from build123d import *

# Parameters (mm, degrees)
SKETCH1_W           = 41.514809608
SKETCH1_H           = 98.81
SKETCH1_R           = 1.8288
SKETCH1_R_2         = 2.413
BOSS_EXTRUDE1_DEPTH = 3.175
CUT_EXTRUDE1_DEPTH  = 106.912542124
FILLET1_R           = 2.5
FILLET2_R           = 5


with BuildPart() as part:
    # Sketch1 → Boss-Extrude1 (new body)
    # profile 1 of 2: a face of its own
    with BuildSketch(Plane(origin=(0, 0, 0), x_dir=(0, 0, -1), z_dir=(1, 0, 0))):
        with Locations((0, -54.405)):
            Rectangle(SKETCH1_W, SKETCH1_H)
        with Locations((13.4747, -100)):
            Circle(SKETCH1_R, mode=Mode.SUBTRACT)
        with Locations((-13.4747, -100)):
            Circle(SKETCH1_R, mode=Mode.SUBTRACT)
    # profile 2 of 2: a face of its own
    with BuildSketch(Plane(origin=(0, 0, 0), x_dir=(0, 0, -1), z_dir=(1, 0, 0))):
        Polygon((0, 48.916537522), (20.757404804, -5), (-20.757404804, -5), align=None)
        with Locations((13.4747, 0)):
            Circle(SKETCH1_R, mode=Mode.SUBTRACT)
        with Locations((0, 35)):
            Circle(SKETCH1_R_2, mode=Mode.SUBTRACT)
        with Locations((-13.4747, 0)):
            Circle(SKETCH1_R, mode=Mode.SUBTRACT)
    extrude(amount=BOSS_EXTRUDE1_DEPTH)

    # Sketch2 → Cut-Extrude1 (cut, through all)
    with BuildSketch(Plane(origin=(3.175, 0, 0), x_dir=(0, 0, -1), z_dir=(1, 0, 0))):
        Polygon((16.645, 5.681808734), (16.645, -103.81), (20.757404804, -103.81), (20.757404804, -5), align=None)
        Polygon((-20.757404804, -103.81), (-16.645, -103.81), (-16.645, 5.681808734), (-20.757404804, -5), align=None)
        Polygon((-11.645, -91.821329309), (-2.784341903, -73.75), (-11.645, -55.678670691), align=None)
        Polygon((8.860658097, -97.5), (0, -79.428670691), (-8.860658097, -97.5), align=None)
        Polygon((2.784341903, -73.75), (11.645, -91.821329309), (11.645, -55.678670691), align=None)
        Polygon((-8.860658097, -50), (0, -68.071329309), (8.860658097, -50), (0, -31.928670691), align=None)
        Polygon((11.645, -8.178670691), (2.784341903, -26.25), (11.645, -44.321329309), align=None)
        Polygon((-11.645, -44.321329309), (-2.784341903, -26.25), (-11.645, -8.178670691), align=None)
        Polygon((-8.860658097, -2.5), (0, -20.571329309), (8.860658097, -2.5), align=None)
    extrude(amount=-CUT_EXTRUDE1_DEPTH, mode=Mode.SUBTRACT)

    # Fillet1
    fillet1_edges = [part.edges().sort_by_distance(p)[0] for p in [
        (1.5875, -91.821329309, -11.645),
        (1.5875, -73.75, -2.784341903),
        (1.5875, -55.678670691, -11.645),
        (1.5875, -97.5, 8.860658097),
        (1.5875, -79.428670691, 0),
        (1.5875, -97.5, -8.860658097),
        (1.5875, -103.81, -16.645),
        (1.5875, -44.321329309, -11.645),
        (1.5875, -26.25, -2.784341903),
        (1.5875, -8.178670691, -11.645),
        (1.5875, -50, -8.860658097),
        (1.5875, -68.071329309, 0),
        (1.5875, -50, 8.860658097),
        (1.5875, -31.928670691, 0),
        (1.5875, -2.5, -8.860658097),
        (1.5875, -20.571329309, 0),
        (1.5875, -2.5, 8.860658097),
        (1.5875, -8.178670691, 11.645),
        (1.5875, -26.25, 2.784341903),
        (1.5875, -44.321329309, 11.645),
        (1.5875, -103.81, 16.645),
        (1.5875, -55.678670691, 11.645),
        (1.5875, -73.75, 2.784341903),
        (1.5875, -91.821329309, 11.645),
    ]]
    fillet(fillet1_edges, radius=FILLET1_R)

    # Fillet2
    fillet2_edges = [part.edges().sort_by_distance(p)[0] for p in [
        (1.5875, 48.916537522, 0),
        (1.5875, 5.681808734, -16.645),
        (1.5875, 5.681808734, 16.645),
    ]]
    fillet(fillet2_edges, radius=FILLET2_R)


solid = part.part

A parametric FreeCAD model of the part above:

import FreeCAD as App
import Part
import Sketcher
from FreeCAD import Vector
Q = App.Units.Quantity


def edges_at(feature, points):
    """Names of the edges that pass closest to the given points."""
    edges = feature.Shape.Edges
    near = lambda p: min(range(len(edges)), key=lambda i: edges[i].distToShape(Part.Vertex(*p))[0])
    return sorted({f"Edge{near(p) + 1}" for p in points})

doc = App.newDocument("Part")
body = doc.addObject("PartDesign::Body", "Body")

# Sketch on YZ plane
sketch1 = doc.addObject("Sketcher::SketchObject", "Sketch")
body.addObject(sketch1)
sketch1.AttachmentSupport = (doc.YZ_Plane, [""])
sketch1.MapMode = "FlatFace"
sketch1.addGeometry([
    Part.LineSegment(Vector(-5, 20.757405, 0), Vector(-103.81, 20.757405, 0)),  # 0
    Part.LineSegment(Vector(-103.81, 20.757405, 0), Vector(-103.81, -20.757405, 0)),  # 1
    Part.LineSegment(Vector(-103.81, -20.757405, 0), Vector(-5, -20.757405, 0)),  # 2
    Part.LineSegment(Vector(-5, -20.757405, 0), Vector(48.916538, 0, 0)),  # 3
    Part.LineSegment(Vector(48.916538, 0, 0), Vector(-5, 20.757405, 0)),  # 4
    Part.Circle(Vector(-100, 13.4747, 0), Vector(0, 0, 1), 1.8288),  # 5
    Part.Circle(Vector(-100, -13.4747, 0), Vector(0, 0, 1), 1.8288),  # 6
    Part.Circle(Vector(35, 0, 0), Vector(0, 0, 1), 2.413),  # 7
    Part.Circle(Vector(0, -13.4747, 0), Vector(0, 0, 1), 1.8288),  # 8
    Part.Circle(Vector(0, 13.4747, 0), Vector(0, 0, 1), 1.8288),  # 9
], False)
sketch1.addConstraint([
    Sketcher.Constraint("Coincident", 0, 2, 1, 1),
    Sketcher.Constraint("Coincident", 1, 2, 2, 1),
    Sketcher.Constraint("Coincident", 2, 2, 3, 1),
    Sketcher.Constraint("Coincident", 3, 2, 4, 1),
    Sketcher.Constraint("Coincident", 4, 2, 0, 1),
    Sketcher.Constraint("Horizontal", 0),
    Sketcher.Constraint("Vertical", 1),
    Sketcher.Constraint("Horizontal", 2),
    Sketcher.Constraint("Equal", 5, 6),
    Sketcher.Constraint("Equal", 6, 8),
    Sketcher.Constraint("Equal", 8, 9),
    Sketcher.Constraint("Symmetric", 8, 3, 9, 3, -1, 1),
    Sketcher.Constraint("Symmetric", 5, 3, 6, 3, -1),
    Sketcher.Constraint("Symmetric", 2, 2, 4, 2, -1),
    Sketcher.Constraint("PointOnObject", 7, 3, -1),
    Sketcher.Constraint("PointOnObject", 8, 3, -2),
    Sketcher.Constraint("PointOnObject", 3, 2, -1),
    Sketcher.Constraint("Horizontal", 6, 3, 8, 3),
    Sketcher.Constraint("Diameter", 7, Q("0.19 in")),
    Sketcher.Constraint("Diameter", 5, Q("0.144 in")),
    Sketcher.Constraint("DistanceX", 0, 2, 5, 3, Q("0.15 in")),
    Sketcher.Constraint("DistanceY", 6, 3, 5, 3, Q("1.061 in")),
    Sketcher.Constraint("DistanceX", 0, 2, 0, 1, 98.81),
    Sketcher.Constraint("DistanceY", 1, 2, 1, 1, 41.51481),
    Sketcher.Constraint("DistanceX", 5, 3, -1, 1, 100.0),
    Sketcher.Constraint("DistanceX", -1, 1, 7, 3, 35.0),
    Sketcher.Constraint("Distance", 3, 57.774241),
])
pad1 = doc.addObject("PartDesign::Pad", "Pad")
body.addObject(pad1)
pad1.Profile = sketch1
pad1.Length = Q("0.125 in")

# Sketch on YZ plane
sketch2 = doc.addObject("Sketcher::SketchObject", "Sketch001")
body.addObject(sketch2)
sketch2.AttachmentSupport = (doc.YZ_Plane, [""])
sketch2.MapMode = "FlatFace"
sketch2.AttachmentOffset = App.Placement(Vector(0, 0, 0.125 * 25.4), App.Rotation())
sketch2.addGeometry([
    Part.LineSegment(Vector(5.681809, -16.645, 0), Vector(-103.81, -16.645, 0)),  # 0
    Part.LineSegment(Vector(-103.81, -16.645, 0), Vector(-103.81, -20.757405, 0)),  # 1
    Part.LineSegment(Vector(-103.81, -20.757405, 0), Vector(-5, -20.757405, 0)),  # 2
    Part.LineSegment(Vector(-5, -20.757405, 0), Vector(5.681809, -16.645, 0)),  # 3
    Part.LineSegment(Vector(-103.81, 20.757405, 0), Vector(-103.81, 16.645, 0)),  # 4
    Part.LineSegment(Vector(-103.81, 16.645, 0), Vector(5.681809, 16.645, 0)),  # 5
    Part.LineSegment(Vector(5.681809, 16.645, 0), Vector(-5, 20.757405, 0)),  # 6
    Part.LineSegment(Vector(-5, 20.757405, 0), Vector(-103.81, 20.757405, 0)),  # 7
    Part.LineSegment(Vector(-91.821329, 11.645, 0), Vector(-73.75, 2.784342, 0)),  # 8
    Part.LineSegment(Vector(-73.75, 2.784342, 0), Vector(-55.678671, 11.645, 0)),  # 9
    Part.LineSegment(Vector(-55.678671, 11.645, 0), Vector(-91.821329, 11.645, 0)),  # 10
    Part.LineSegment(Vector(-97.5, -8.860658, 0), Vector(-79.428671, 0, 0)),  # 11
    Part.LineSegment(Vector(-79.428671, 0, 0), Vector(-97.5, 8.860658, 0)),  # 12
    Part.LineSegment(Vector(-97.5, 8.860658, 0), Vector(-97.5, -8.860658, 0)),  # 13
    Part.LineSegment(Vector(-73.75, -2.784342, 0), Vector(-91.821329, -11.645, 0)),  # 14
    Part.LineSegment(Vector(-91.821329, -11.645, 0), Vector(-55.678671, -11.645, 0)),  # 15
    Part.LineSegment(Vector(-55.678671, -11.645, 0), Vector(-73.75, -2.784342, 0)),  # 16
    Part.LineSegment(Vector(-50, 8.860658, 0), Vector(-68.071329, 0, 0)),  # 17
    Part.LineSegment(Vector(-68.071329, 0, 0), Vector(-50, -8.860658, 0)),  # 18
    Part.LineSegment(Vector(-50, -8.860658, 0), Vector(-31.928671, 0, 0)),  # 19
    Part.LineSegment(Vector(-31.928671, 0, 0), Vector(-50, 8.860658, 0)),  # 20
    Part.LineSegment(Vector(-8.178671, -11.645, 0), Vector(-26.25, -2.784342, 0)),  # 21
    Part.LineSegment(Vector(-26.25, -2.784342, 0), Vector(-44.321329, -11.645, 0)),  # 22
    Part.LineSegment(Vector(-44.321329, -11.645, 0), Vector(-8.178671, -11.645, 0)),  # 23
    Part.LineSegment(Vector(-44.321329, 11.645, 0), Vector(-26.25, 2.784342, 0)),  # 24
    Part.LineSegment(Vector(-26.25, 2.784342, 0), Vector(-8.178671, 11.645, 0)),  # 25
    Part.LineSegment(Vector(-8.178671, 11.645, 0), Vector(-44.321329, 11.645, 0)),  # 26
    Part.LineSegment(Vector(-2.5, 8.860658, 0), Vector(-20.571329, 0, 0)),  # 27
    Part.LineSegment(Vector(-20.571329, 0, 0), Vector(-2.5, -8.860658, 0)),  # 28
    Part.LineSegment(Vector(-2.5, -8.860658, 0), Vector(-2.5, 8.860658, 0)),  # 29
], False)
sketch2.addConstraint([
    Sketcher.Constraint("Coincident", 0, 2, 1, 1),
    Sketcher.Constraint("Coincident", 1, 2, 2, 1),
    Sketcher.Constraint("Coincident", 2, 2, 3, 1),
    Sketcher.Constraint("Coincident", 3, 2, 0, 1),
    Sketcher.Constraint("Coincident", 4, 2, 5, 1),
    Sketcher.Constraint("Coincident", 5, 2, 6, 1),
    Sketcher.Constraint("Coincident", 6, 2, 7, 1),
    Sketcher.Constraint("Coincident", 7, 2, 4, 1),
    Sketcher.Constraint("Coincident", 8, 2, 9, 1),
    Sketcher.Constraint("Coincident", 9, 2, 10, 1),
    Sketcher.Constraint("Coincident", 10, 2, 8, 1),
    Sketcher.Constraint("Coincident", 11, 2, 12, 1),
    Sketcher.Constraint("Coincident", 12, 2, 13, 1),
    Sketcher.Constraint("Coincident", 13, 2, 11, 1),
    Sketcher.Constraint("Coincident", 14, 2, 15, 1),
    Sketcher.Constraint("Coincident", 15, 2, 16, 1),
    Sketcher.Constraint("Coincident", 16, 2, 14, 1),
    Sketcher.Constraint("Coincident", 17, 2, 18, 1),
    Sketcher.Constraint("Coincident", 18, 2, 19, 1),
    Sketcher.Constraint("Coincident", 19, 2, 20, 1),
    Sketcher.Constraint("Coincident", 20, 2, 17, 1),
    Sketcher.Constraint("Coincident", 21, 2, 22, 1),
    Sketcher.Constraint("Coincident", 22, 2, 23, 1),
    Sketcher.Constraint("Coincident", 23, 2, 21, 1),
    Sketcher.Constraint("Coincident", 24, 2, 25, 1),
    Sketcher.Constraint("Coincident", 25, 2, 26, 1),
    Sketcher.Constraint("Coincident", 26, 2, 24, 1),
    Sketcher.Constraint("Coincident", 27, 2, 28, 1),
    Sketcher.Constraint("Coincident", 28, 2, 29, 1),
    Sketcher.Constraint("Coincident", 29, 2, 27, 1),
    Sketcher.Constraint("Horizontal", 0),
    Sketcher.Constraint("Vertical", 1),
    Sketcher.Constraint("Horizontal", 2),
    Sketcher.Constraint("Vertical", 4),
    Sketcher.Constraint("Horizontal", 5),
    Sketcher.Constraint("Horizontal", 7),
    Sketcher.Constraint("Horizontal", 10),
    Sketcher.Constraint("Vertical", 13),
    Sketcher.Constraint("Horizontal", 15),
    Sketcher.Constraint("Horizontal", 23),
    Sketcher.Constraint("Horizontal", 26),
    Sketcher.Constraint("Vertical", 29),
    Sketcher.Constraint("Symmetric", 0, 2, 4, 2, -1),
    Sketcher.Constraint("Symmetric", 2, 2, 6, 2, -1),
    Sketcher.Constraint("Symmetric", 10, 2, 14, 2, -1),
    Sketcher.Constraint("Symmetric", 8, 2, 16, 2, -1),
    Sketcher.Constraint("Symmetric", 18, 2, 20, 2, -1),
    Sketcher.Constraint("Symmetric", 21, 2, 24, 2, -1),
    Sketcher.Constraint("Symmetric", 23, 2, 25, 2, -1),
    Sketcher.Constraint("PointOnObject", 11, 2, -1),
    Sketcher.Constraint("PointOnObject", 17, 2, -1),
    Sketcher.Constraint("PointOnObject", 19, 2, -1),
    Sketcher.Constraint("PointOnObject", 27, 2, -1),
    Sketcher.Constraint("Parallel", 9, 11),
    Sketcher.Constraint("Parallel", 8, 12),
    Sketcher.Constraint("Parallel", 11, 14),
    Sketcher.Constraint("Parallel", 12, 16),
    Sketcher.Constraint("Parallel", 14, 17),
    Sketcher.Constraint("Parallel", 17, 19),
    Sketcher.Constraint("Parallel", 20, 21),
    Sketcher.Constraint("Parallel", 19, 22),
    Sketcher.Constraint("Parallel", 21, 24),
    Sketcher.Constraint("Parallel", 25, 27),
    Sketcher.Constraint("Parallel", 24, 28),
    Sketcher.Constraint("Horizontal", 13, 2, 18, 2),
    Sketcher.Constraint("Horizontal", 16, 2, 21, 2),
    Sketcher.Constraint("Horizontal", 15, 2, 22, 2),
    Sketcher.Constraint("Horizontal", 18, 2, 28, 2),
    Sketcher.Constraint("Vertical", 3, 2, 5, 2),
    Sketcher.Constraint("Equal", 9, 11),
    Sketcher.Constraint("DistanceX", 2, 1, 2, 2, 98.81),
    Sketcher.Constraint("DistanceX", 10, 2, 11, 2, Q("0.4878999 in")),
    Sketcher.Constraint("DistanceX", 17, 2, 9, 2, Q("0.4878999 in")),
    Sketcher.Constraint("DistanceX", 22, 2, 19, 2, Q("0.4878999 in")),
    Sketcher.Constraint("DistanceX", 27, 2, 23, 2, Q("0.4878999 in")),
    Sketcher.Constraint("DistanceX", 0, 2, 0, 1, 109.491809),
    Sketcher.Constraint("DistanceX", 10, 2, 10, 1, 36.142659),
    Sketcher.Constraint("DistanceX", 0, 2, -1, 1, 103.81),
    Sketcher.Constraint("DistanceY", 0, 2, -1, 1, 16.645),
    Sketcher.Constraint("DistanceX", 8, 2, -1, 1, 73.75),
    Sketcher.Constraint("DistanceY", -1, 1, 9, 2, 11.645),
    Sketcher.Constraint("DistanceY", 1, 2, 1, 1, 4.112405),
    Sketcher.Constraint("DistanceY", 13, 2, 13, 1, 17.721316),
])
pocket1 = doc.addObject("PartDesign::Pocket", "Pocket")
body.addObject(pocket1)
pocket1.Profile = sketch2
pocket1.Type = "ThroughAll"
doc.recompute()

fillet = doc.addObject("PartDesign::Fillet", "Fillet")
body.addObject(fillet)
fillet.Base = (pocket1, edges_at(pocket1, [
    (1.587, -91.821, -11.645),
    (1.587, -73.75, -2.784),
    (1.587, -55.679, -11.645),
    (1.587, -97.5, 8.861),
    (1.587, -79.429, 0),
    (1.587, -97.5, -8.861),
    (1.587, -103.81, -16.645),
    (1.587, -44.321, -11.645),
    (1.587, -26.25, -2.784),
    (1.587, -8.179, -11.645),
    (1.587, -50, -8.861),
    (1.587, -68.071, 0),
    (1.587, -50, 8.861),
    (1.587, -31.929, 0),
    (1.587, -2.5, -8.861),
    (1.587, -20.571, 0),
    (1.587, -2.5, 8.861),
    (1.587, -8.179, 11.645),
    (1.587, -26.25, 2.784),
    (1.587, -44.321, 11.645),
    (1.587, -103.81, 16.645),
    (1.587, -55.679, 11.645),
    (1.587, -73.75, 2.784),
    (1.587, -91.821, 11.645),
]))
fillet.Radius = 2.5
doc.recompute()

fillet2 = doc.addObject("PartDesign::Fillet", "Fillet001")
body.addObject(fillet2)
fillet2.Base = (fillet, edges_at(fillet, [(1.587, 48.917, 0), (1.587, 5.682, -16.645), (1.587, 5.682, 16.645)]))
fillet2.Radius = 5

doc.recompute()
